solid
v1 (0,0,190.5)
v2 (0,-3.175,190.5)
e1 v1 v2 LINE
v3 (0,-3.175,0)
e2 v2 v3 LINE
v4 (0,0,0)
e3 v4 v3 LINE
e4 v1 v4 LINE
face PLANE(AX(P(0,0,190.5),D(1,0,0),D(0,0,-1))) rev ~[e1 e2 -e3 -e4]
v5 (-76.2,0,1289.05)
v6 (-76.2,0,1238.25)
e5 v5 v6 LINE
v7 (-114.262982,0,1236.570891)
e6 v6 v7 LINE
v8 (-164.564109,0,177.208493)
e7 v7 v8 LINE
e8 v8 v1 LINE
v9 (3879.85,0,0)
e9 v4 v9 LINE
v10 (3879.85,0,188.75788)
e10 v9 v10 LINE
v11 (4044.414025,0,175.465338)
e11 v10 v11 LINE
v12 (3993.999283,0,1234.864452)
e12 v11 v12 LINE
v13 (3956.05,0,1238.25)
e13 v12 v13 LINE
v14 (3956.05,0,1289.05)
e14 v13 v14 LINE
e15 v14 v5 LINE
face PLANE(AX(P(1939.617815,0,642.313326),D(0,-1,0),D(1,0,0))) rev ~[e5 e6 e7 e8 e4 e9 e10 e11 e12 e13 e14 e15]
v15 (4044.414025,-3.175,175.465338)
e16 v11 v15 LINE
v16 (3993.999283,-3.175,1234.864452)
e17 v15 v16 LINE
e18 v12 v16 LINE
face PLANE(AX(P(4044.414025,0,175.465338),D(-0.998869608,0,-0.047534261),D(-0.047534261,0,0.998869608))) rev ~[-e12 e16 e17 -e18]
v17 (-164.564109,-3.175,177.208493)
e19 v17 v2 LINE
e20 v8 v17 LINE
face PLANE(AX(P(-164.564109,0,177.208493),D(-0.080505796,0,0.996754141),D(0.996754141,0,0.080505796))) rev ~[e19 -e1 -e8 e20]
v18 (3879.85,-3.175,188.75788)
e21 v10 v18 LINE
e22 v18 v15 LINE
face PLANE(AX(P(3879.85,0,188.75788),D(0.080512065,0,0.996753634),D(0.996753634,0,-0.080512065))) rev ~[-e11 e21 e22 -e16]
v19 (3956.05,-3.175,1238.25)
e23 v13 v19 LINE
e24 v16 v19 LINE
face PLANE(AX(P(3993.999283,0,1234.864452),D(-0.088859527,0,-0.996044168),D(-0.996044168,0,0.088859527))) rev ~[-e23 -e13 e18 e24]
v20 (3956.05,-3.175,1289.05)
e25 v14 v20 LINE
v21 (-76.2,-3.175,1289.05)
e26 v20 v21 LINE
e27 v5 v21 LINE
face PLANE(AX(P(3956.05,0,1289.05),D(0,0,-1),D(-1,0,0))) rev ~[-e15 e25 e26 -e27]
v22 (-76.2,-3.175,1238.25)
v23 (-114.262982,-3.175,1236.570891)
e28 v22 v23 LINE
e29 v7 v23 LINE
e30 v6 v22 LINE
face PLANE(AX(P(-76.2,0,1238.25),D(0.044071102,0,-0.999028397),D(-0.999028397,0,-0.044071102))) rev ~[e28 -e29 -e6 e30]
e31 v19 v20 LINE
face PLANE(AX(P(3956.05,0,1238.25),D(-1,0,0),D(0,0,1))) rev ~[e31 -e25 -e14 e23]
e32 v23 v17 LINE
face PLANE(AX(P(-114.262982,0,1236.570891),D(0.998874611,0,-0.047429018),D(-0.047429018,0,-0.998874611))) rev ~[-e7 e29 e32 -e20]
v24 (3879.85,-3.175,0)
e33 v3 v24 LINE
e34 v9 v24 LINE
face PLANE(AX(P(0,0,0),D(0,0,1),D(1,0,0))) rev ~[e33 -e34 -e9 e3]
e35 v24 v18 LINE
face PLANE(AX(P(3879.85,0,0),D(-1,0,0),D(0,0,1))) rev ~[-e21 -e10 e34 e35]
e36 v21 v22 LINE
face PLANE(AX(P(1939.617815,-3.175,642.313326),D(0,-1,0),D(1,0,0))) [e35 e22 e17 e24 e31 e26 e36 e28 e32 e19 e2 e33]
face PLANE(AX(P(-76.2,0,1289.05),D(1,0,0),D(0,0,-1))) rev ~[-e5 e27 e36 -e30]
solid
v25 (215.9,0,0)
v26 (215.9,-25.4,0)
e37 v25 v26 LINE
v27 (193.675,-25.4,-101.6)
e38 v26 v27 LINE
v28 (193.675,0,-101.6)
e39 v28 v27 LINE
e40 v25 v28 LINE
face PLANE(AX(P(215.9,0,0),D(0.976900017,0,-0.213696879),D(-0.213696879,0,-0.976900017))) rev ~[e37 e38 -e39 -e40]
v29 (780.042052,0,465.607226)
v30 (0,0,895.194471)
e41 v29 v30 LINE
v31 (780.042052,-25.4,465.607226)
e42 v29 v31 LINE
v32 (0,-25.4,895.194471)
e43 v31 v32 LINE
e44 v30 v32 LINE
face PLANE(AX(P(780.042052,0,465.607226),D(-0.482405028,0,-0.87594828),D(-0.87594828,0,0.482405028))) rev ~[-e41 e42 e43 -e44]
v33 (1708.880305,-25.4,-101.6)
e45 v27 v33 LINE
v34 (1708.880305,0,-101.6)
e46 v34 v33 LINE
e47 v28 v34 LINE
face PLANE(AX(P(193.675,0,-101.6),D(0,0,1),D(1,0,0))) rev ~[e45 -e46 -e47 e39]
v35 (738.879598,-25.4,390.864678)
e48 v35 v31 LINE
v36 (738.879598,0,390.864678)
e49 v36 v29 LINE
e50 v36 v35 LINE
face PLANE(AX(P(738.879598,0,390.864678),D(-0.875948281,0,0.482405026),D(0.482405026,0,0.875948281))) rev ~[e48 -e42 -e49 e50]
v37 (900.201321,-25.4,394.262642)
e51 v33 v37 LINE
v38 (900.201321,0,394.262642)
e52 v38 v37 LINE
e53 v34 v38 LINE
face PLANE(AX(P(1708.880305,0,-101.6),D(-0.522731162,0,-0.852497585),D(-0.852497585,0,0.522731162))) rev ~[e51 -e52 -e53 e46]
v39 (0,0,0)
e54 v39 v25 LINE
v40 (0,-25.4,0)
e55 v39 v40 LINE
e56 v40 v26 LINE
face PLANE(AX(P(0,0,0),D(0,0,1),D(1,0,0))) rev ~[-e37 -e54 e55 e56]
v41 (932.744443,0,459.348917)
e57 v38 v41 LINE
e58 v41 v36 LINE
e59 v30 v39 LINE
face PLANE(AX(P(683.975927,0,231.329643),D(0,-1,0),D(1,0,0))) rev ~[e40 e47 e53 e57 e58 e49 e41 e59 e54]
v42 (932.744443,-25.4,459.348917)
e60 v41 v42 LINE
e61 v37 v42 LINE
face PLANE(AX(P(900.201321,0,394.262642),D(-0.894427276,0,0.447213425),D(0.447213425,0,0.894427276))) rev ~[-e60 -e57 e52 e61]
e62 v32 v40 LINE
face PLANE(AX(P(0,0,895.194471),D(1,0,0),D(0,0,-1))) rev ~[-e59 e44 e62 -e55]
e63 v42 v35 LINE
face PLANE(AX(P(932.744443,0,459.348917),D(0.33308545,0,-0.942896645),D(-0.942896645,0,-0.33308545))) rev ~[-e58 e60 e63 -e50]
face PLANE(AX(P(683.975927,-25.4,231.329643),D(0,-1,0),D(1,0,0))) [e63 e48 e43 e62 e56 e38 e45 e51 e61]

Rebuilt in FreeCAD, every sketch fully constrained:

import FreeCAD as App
import Part
import Sketcher

V = App.Vector
Q = App.Units.Quantity

doc = App.newDocument("Part")
params = doc.addObject("Spreadsheet::Sheet", "Params")
for row, (alias, value) in enumerate([
    ("sketch1_height", "2 in"),
    ("sketch1_height2", "7.5 in"),
    ("sketch1_length", "6.5 in"),
    ("sketch1_length2", "1.5 in"),
    ("sketch1_width", "152.75 in"),
    ("pad1_length", "0.125 in"),
    ("sketch2_width", "8.5 in"),
    ("pad2_length", "1 in"),
], start=1):
    params.set(f"A{row}", alias)
    params.set(f"B{row}", "=" + value)
    params.setAlias(f"B{row}", alias)

body = doc.addObject("PartDesign::Body", "Body")

# Sketch on XZ plane
sketch1 = body.newObject("Sketcher::SketchObject", "Sketch")
sketch1.AttachmentSupport = (doc.getObject("XZ_Plane"), [""])
sketch1.MapMode = "FlatFace"
sketch1.addGeometry([
    Part.LineSegment(V(0, 190, 0), V(0, 0, 0)),  # 0
    Part.LineSegment(V(0, 0, 0), V(3880, 0, 0)),  # 1
    Part.LineSegment(V(3880, 0, 0), V(3880, 189, 0)),  # 2
    Part.LineSegment(V(3880, 189, 0), V(4044, 175, 0)),  # 3
    Part.LineSegment(V(4044, 175, 0), V(3994, 1235, 0)),  # 4
    Part.LineSegment(V(3994, 1235, 0), V(3956, 1238, 0)),  # 5
    Part.LineSegment(V(3956, 1238, 0), V(3956, 1289, 0)),  # 6
    Part.LineSegment(V(3956, 1289, 0), V(-76, 1289, 0)),  # 7
    Part.LineSegment(V(-76, 1289, 0), V(-76, 1238, 0)),  # 8
    Part.LineSegment(V(-76, 1238, 0), V(-114, 1237, 0)),  # 9
    Part.LineSegment(V(-114, 1237, 0), V(-165, 177, 0)),  # 10
    Part.LineSegment(V(-165, 177, 0), V(0, 190, 0)),  # 11
], False)
sketch1.addConstraint([
    Sketcher.Constraint("Coincident", 0, 2, 1, 1),
    Sketcher.Constraint("Coincident", 1, 2, 2, 1),
    Sketcher.Constraint("Coincident", 2, 2, 3, 1),
    Sketcher.Constraint("Coincident", 3, 2, 4, 1),
    Sketcher.Constraint("Coincident", 4, 2, 5, 1),
    Sketcher.Constraint("Coincident", 5, 2, 6, 1),
    Sketcher.Constraint("Coincident", 6, 2, 7, 1),
    Sketcher.Constraint("Coincident", 7, 2, 8, 1),
    Sketcher.Constraint("Coincident", 8, 2, 9, 1),
    Sketcher.Constraint("Coincident", 9, 2, 10, 1),
    Sketcher.Constraint("Coincident", 10, 2, 11, 1),
    Sketcher.Constraint("Coincident", 11, 2, 0, 1),
    Sketcher.Constraint("Vertical", 0),
    Sketcher.Constraint("Horizontal", 1),
    Sketcher.Constraint("Vertical", 2),
    Sketcher.Constraint("Vertical", 6),
    Sketcher.Constraint("Horizontal", 7),
    Sketcher.Constraint("Vertical", 8),
    Sketcher.Constraint("Coincident", 0, 2, -1, 1),
    Sketcher.Constraint("Horizontal", 5, 2, 8, 2),
    Sketcher.Constraint("Equal", 5, 9),
    Sketcher.Constraint("Equal", 3, 11),
    Sketcher.Constraint("DistanceY", 6, 1, 6, 2, Q("2 in")),
    Sketcher.Constraint("DistanceY", 0, 2, 0, 1, Q("7.5 in")),
    Sketcher.Constraint("DistanceX", 7, 2, -1, 1, Q("3 in")),
    Sketcher.Constraint("DistanceX", 2, 2, 5, 2, Q("3 in")),
    Sketcher.Constraint("Distance", 3, Q("6.5 in")),
    Sketcher.Constraint("Distance", 5, Q("1.5 in")),
    Sketcher.Constraint("DistanceX", 1, 1, 1, 2, Q("152.75 in")),
    Sketcher.Constraint("DistanceY", -1, 1, 5, 2, Q("48.75 in")),
    Sketcher.Constraint("DistanceY", 2, 1, 2, 2, 188.75788),
    Sketcher.Constraint("DistanceY", 10, 2, 9, 2, 1059.362398),
    Sketcher.Constraint("DistanceY", -1, 1, 3, 2, 175.465338),
    Sketcher.Constraint("DistanceY", -1, 1, 4, 2, 1234.864452),
    Sketcher.Constraint("DistanceX", 9, 2, -1, 1, 114.262982),
])
sketch1.setExpression("Constraints[22]", "Params.sketch1_height")
sketch1.setExpression("Constraints[23]", "Params.sketch1_height2")
sketch1.setExpression("Constraints[26]", "Params.sketch1_length")
sketch1.setExpression("Constraints[27]", "Params.sketch1_length2")
sketch1.setExpression("Constraints[28]", "Params.sketch1_width")
pad1 = body.newObject("PartDesign::Pad", "Pad")
pad1.Profile = sketch1
pad1.setExpression("Length", "Params.pad1_length")
body2 = doc.addObject("PartDesign::Body", "Body001")

# Sketch on XZ plane
sketch2 = body2.newObject("Sketcher::SketchObject", "Sketch001")
sketch2.AttachmentSupport = (doc.getObject("XZ_Plane001"), [""])
sketch2.MapMode = "FlatFace"
sketch2.addGeometry([
    Part.LineSegment(V(0, 895, 0), V(0, 0, 0)),  # 0
    Part.LineSegment(V(0, 0, 0), V(216, 0, 0)),  # 1
    Part.LineSegment(V(216, 0, 0), V(194, -102, 0)),  # 2
    Part.LineSegment(V(194, -102, 0), V(1709, -102, 0)),  # 3
    Part.LineSegment(V(1709, -102, 0), V(900, 394, 0)),  # 4
    Part.LineSegment(V(900, 394, 0), V(933, 459, 0)),  # 5
    Part.LineSegment(V(933, 459, 0), V(739, 391, 0)),  # 6
    Part.LineSegment(V(739, 391, 0), V(780, 466, 0)),  # 7
    Part.LineSegment(V(780, 466, 0), V(0, 895, 0)),  # 8
], False)
sketch2.addConstraint([
    Sketcher.Constraint("Coincident", 0, 2, 1, 1),
    Sketcher.Constraint("Coincident", 1, 2, 2, 1),
    Sketcher.Constraint("Coincident", 2, 2, 3, 1),
    Sketcher.Constraint("Coincident", 3, 2, 4, 1),
    Sketcher.Constraint("Coincident", 4, 2, 5, 1),
    Sketcher.Constraint("Coincident", 5, 2, 6, 1),
    Sketcher.Constraint("Coincident", 6, 2, 7, 1),
    Sketcher.Constraint("Coincident", 7, 2, 8, 1),
    Sketcher.Constraint("Coincident", 8, 2, 0, 1),
    Sketcher.Constraint("Vertical", 0),
    Sketcher.Constraint("Horizontal", 1),
    Sketcher.Constraint("Horizontal", 3),
    Sketcher.Constraint("Coincident", 0, 2, -1, 1),
    Sketcher.Constraint("Perpendicular", 7, 8),
    Sketcher.Constraint("DistanceX", 1, 1, 1, 2, Q("8.5 in")),
    Sketcher.Constraint("DistanceY", 2, 2, -1, 1, Q("4 in")),
    Sketcher.Constraint("DistanceX", -1, 1, 2, 2, Q("7.625 in")),
    Sketcher.Constraint("DistanceY", 0, 2, 0, 1, 895.194471),
    Sketcher.Constraint("DistanceX", -1, 1, 6, 2, 738.879598),
    Sketcher.Constraint("Distance", 5, 72.768661),
    Sketcher.Constraint("Distance", 7, 85.327581),
    Sketcher.Constraint("Distance", 8, 890.511541),
    Sketcher.Constraint("DistanceX", 3, 1, 3, 2, 1515.205305),
    Sketcher.Constraint("DistanceX", -1, 1, 4, 2, 900.201321),
    Sketcher.Constraint("DistanceX", 5, 2, 3, 2, 776.135862),
    Sketcher.Constraint("DistanceY", 6, 2, 5, 2, 68.484239),
])
sketch2.setExpression("Constraints[14]", "Params.sketch2_width")
pad2 = body2.newObject("PartDesign::Pad", "Pad001")
pad2.Profile = sketch2
pad2.setExpression("Length", "Params.pad2_length")

doc.recompute()
